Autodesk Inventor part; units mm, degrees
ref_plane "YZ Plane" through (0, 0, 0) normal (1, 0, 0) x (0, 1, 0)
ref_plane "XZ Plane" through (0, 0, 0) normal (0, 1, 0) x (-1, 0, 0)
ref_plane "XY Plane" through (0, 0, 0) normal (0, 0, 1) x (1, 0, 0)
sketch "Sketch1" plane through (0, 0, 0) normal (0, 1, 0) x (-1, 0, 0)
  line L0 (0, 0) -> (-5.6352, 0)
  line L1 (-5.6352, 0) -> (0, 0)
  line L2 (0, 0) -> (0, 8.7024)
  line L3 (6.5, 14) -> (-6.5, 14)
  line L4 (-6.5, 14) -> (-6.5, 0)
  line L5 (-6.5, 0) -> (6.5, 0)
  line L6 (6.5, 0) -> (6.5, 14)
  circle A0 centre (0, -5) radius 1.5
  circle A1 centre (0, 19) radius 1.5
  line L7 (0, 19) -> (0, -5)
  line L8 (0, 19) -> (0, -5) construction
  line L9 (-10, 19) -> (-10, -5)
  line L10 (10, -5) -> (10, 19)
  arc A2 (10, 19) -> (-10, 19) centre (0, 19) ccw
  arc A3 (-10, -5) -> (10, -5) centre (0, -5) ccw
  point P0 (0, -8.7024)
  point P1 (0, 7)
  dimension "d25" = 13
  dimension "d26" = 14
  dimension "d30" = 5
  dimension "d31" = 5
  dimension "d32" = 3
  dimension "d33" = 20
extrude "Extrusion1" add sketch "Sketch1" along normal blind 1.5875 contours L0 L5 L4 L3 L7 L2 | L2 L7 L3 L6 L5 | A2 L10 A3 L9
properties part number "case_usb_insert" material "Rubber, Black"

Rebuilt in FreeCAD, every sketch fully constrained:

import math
import FreeCAD as App
import Part
import Sketcher
Q = App.Units.Quantity

doc = App.newDocument("Part")
body = doc.addObject("PartDesign::Body", "Body")

# Sketch on XZ plane
sketch1 = body.newObject("Sketcher::SketchObject", "Sketch")
sketch1.AttachmentSupport = (doc.getObject("XZ_Plane"), [""])
sketch1.MapMode = "FlatFace"
sketch1.addGeometry([
    Part.ArcOfCircle(Part.Circle(App.Vector(0, 19, 0), App.Vector(0, 0, 1), 10), math.radians(0), math.radians(180)),  # 0
    Part.LineSegment(App.Vector(10, 19, 0), App.Vector(10, -5, 0)),  # 1
    Part.ArcOfCircle(Part.Circle(App.Vector(0, -5, 0), App.Vector(0, 0, 1), 10), math.radians(180), math.radians(360)),  # 2
    Part.LineSegment(App.Vector(-10, -5, 0), App.Vector(-10, 19, 0)),  # 3
    Part.Circle(App.Vector(0, -5, 0), App.Vector(0, 0, 1), 1.5),  # 4
    Part.Circle(App.Vector(0, 19, 0), App.Vector(0, 0, 1), 1.5),  # 5
], False)
sketch1.addConstraint([
    Sketcher.Constraint("Tangent", 0, 1, 1, 1),
    Sketcher.Constraint("Tangent", 1, 2, 2, 2),
    Sketcher.Constraint("Tangent", 2, 1, 3, 1),
    Sketcher.Constraint("Tangent", 3, 2, 0, 2),
    Sketcher.Constraint("Vertical", 1),
    Sketcher.Constraint("Vertical", 3),
    Sketcher.Constraint("Coincident", 4, 3, 2, 3),
    Sketcher.Constraint("Coincident", 5, 3, 0, 3),
    Sketcher.Constraint("Equal", 4, 5),
    Sketcher.Constraint("PointOnObject", 0, 3, -2),
    Sketcher.Constraint("Diameter", 4, Q("3 mm")),
    Sketcher.Constraint("Radius", 0, Q("10 mm")),
    Sketcher.Constraint("DistanceY", 2, 3, -1, 1, Q("5 mm")),
    Sketcher.Constraint("DistanceY", 1, 2, 1, 1, Q("24 mm")),
])
pad1 = body.newObject("PartDesign::Pad", "Pad")
pad1.Profile = sketch1
pad1.Length = 1.5875
pad1.Reversed = True

doc.recompute()
